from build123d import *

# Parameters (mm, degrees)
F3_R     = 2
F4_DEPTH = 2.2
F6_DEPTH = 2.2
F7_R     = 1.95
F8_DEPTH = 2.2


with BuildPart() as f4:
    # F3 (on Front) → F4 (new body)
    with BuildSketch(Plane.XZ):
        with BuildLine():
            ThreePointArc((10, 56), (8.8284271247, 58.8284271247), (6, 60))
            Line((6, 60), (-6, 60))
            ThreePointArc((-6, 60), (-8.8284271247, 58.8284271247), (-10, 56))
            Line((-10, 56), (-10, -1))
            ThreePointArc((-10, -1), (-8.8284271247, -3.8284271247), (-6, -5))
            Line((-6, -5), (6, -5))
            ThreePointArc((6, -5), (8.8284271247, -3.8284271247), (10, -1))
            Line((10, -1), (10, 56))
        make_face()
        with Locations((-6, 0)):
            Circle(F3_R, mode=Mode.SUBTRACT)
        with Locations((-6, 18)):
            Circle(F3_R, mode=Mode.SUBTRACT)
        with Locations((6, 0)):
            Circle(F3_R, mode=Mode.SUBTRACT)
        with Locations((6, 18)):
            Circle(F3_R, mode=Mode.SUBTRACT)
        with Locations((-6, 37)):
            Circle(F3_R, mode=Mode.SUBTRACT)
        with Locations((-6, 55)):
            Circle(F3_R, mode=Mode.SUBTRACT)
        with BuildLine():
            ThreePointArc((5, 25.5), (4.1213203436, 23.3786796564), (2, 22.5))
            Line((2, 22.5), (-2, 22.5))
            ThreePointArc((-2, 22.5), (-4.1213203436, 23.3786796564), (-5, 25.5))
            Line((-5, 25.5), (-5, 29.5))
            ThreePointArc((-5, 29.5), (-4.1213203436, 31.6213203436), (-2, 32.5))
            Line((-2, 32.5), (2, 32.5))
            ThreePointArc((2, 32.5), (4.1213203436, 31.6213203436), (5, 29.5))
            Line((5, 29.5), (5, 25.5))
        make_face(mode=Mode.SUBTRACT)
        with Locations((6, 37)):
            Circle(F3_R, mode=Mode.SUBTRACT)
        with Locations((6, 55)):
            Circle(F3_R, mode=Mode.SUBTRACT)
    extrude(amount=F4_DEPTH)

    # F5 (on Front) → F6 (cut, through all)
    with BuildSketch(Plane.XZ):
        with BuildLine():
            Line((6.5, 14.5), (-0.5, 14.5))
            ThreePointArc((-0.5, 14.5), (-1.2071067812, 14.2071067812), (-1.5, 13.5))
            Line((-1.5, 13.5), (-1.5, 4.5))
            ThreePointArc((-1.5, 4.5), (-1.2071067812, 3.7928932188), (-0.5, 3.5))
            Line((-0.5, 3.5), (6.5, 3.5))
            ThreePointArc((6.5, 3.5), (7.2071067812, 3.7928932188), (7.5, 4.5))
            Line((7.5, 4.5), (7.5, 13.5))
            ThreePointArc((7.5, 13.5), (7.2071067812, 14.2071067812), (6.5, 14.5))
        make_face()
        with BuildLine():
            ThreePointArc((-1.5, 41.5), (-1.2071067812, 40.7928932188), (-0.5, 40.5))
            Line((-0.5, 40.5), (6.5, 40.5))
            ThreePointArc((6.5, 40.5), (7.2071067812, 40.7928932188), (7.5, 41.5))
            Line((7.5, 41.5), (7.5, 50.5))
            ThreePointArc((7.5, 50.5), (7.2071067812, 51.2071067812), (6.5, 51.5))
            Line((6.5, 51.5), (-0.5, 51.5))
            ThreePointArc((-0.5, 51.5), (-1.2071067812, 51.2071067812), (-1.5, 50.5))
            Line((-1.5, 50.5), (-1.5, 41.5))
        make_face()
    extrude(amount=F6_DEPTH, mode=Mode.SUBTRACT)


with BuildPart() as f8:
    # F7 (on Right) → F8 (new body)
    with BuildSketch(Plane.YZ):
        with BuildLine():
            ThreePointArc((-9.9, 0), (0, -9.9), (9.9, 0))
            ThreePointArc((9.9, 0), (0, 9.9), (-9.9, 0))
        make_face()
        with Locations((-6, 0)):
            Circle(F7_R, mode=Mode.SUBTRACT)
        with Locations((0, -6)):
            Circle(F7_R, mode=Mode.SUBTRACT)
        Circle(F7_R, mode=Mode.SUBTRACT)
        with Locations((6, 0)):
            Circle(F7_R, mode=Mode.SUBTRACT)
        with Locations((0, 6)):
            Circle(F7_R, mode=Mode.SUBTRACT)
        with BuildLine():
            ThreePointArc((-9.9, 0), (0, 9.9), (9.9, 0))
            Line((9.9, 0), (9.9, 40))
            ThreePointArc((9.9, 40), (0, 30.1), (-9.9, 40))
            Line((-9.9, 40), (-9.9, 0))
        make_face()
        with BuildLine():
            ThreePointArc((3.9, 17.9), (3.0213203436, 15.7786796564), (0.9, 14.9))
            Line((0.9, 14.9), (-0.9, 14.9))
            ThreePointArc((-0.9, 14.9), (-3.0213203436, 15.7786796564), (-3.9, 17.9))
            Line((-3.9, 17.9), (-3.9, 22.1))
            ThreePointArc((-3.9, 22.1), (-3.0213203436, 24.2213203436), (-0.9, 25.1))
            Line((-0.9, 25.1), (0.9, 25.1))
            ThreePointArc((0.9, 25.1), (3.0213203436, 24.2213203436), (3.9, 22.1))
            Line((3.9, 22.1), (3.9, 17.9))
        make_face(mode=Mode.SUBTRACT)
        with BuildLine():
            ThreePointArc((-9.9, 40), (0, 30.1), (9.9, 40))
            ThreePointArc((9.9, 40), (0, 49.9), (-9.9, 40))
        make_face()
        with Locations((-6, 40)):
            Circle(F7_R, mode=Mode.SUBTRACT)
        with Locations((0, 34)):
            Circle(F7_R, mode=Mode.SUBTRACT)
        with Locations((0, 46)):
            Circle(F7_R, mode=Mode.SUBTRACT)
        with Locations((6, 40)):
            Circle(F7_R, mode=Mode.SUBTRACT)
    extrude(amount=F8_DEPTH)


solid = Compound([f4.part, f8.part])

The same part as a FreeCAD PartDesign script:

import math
import FreeCAD as App
import Part
import Sketcher
from FreeCAD import Vector

doc = App.newDocument("Part")
body = doc.addObject("PartDesign::Body", "Body")

sketch1 = body.newObject("Sketcher::SketchObject", "Sketch")
sketch1.AttachmentSupport = (doc.getObject("XZ_Plane"), [""])
sketch1.MapMode = "FlatFace"
sketch1.addGeometry([
    Part.ArcOfCircle(Part.Circle(Vector(6, 56, 0), Vector(0, 0, 1), 4), math.radians(0), math.radians(90)),
    Part.LineSegment(Vector(6, 60, 0), Vector(-6, 60, 0)),
    Part.ArcOfCircle(Part.Circle(Vector(-6, 56, 0), Vector(0, 0, 1), 4), math.radians(90), math.radians(180)),
    Part.LineSegment(Vector(-10, 56, 0), Vector(-10, -1, 0)),
    Part.ArcOfCircle(Part.Circle(Vector(-6, -1, 0), Vector(0, 0, 1), 4), math.radians(180), math.radians(270)),
    Part.LineSegment(Vector(-6, -5, 0), Vector(6, -5, 0)),
    Part.ArcOfCircle(Part.Circle(Vector(6, -1, 0), Vector(0, 0, 1), 4), math.radians(-90), math.radians(0)),
    Part.LineSegment(Vector(10, -1, 0), Vector(10, 56, 0)),
    Part.Circle(Vector(-6, 0, 0), Vector(0, 0, 1), 2),
    Part.Circle(Vector(-6, 18, 0), Vector(0, 0, 1), 2),
    Part.Circle(Vector(6, 0, 0), Vector(0, 0, 1), 2),
    Part.Circle(Vector(6, 18, 0), Vector(0, 0, 1), 2),
    Part.Circle(Vector(-6, 37, 0), Vector(0, 0, 1), 2),
    Part.Circle(Vector(-6, 55, 0), Vector(0, 0, 1), 2),
    Part.LineSegment(Vector(5, 29.5, 0), Vector(5, 25.5, 0)),
    Part.ArcOfCircle(Part.Circle(Vector(2, 25.5, 0), Vector(0, 0, 1), 3), math.radians(-90), math.radians(0)),
    Part.LineSegment(Vector(2, 22.5, 0), Vector(-2, 22.5, 0)),
    Part.ArcOfCircle(Part.Circle(Vector(-2, 25.5, 0), Vector(0, 0, 1), 3), math.radians(180), math.radians(270)),
    Part.LineSegment(Vector(-5, 25.5, 0), Vector(-5, 29.5, 0)),
    Part.ArcOfCircle(Part.Circle(Vector(-2, 29.5, 0), Vector(0, 0, 1), 3), math.radians(90), math.radians(180)),
    Part.LineSegment(Vector(-2, 32.5, 0), Vector(2, 32.5, 0)),
    Part.ArcOfCircle(Part.Circle(Vector(2, 29.5, 0), Vector(0, 0, 1), 3), math.radians(0), math.radians(90)),
    Part.Circle(Vector(6, 37, 0), Vector(0, 0, 1), 2),
    Part.Circle(Vector(6, 55, 0), Vector(0, 0, 1), 2),
], False)
sketch1.addConstraint([
    Sketcher.Constraint("Tangent", 0, 2, 1, 1),
    Sketcher.Constraint("Tangent", 1, 2, 2, 1),
    Sketcher.Constraint("Tangent", 2, 2, 3, 1),
    Sketcher.Constraint("Tangent", 3, 2, 4, 1),
    Sketcher.Constraint("Tangent", 4, 2, 5, 1),
    Sketcher.Constraint("Tangent", 5, 2, 6, 1),
    Sketcher.Constraint("Tangent", 6, 2, 7, 1),
    Sketcher.Constraint("Tangent", 7, 2, 0, 1),
    Sketcher.Constraint("Tangent", 14, 2, 15, 2),
    Sketcher.Constraint("Tangent", 15, 1, 16, 1),
    Sketcher.Constraint("Tangent", 16, 2, 17, 2),
    Sketcher.Constraint("Tangent", 17, 1, 18, 1),
    Sketcher.Constraint("Tangent", 18, 2, 19, 2),
    Sketcher.Constraint("Tangent", 19, 1, 20, 1),
    Sketcher.Constraint("Tangent", 20, 2, 21, 2),
    Sketcher.Constraint("Tangent", 21, 1, 14, 1),
    Sketcher.Constraint("Horizontal", 1),
    Sketcher.Constraint("Vertical", 3),
    Sketcher.Constraint("Horizontal", 5),
    Sketcher.Constraint("Vertical", 7),
    Sketcher.Constraint("Vertical", 14),
    Sketcher.Constraint("Horizontal", 16),
    Sketcher.Constraint("Vertical", 18),
    Sketcher.Constraint("Horizontal", 20),
    Sketcher.Constraint("Equal", 0, 2),
    Sketcher.Constraint("Equal", 2, 4),
    Sketcher.Constraint("Equal", 4, 6),
    Sketcher.Constraint("Equal", 8, 9),
    Sketcher.Constraint("Equal", 9, 10),
    Sketcher.Constraint("Equal", 10, 11),
    Sketcher.Constraint("Equal", 11, 12),
    Sketcher.Constraint("Equal", 12, 13),
    Sketcher.Constraint("Equal", 15, 17),
    Sketcher.Constraint("Equal", 17, 19),
    Sketcher.Constraint("Equal", 19, 21),
    Sketcher.Constraint("Equal", 13, 22),
    Sketcher.Constraint("Equal", 22, 23),
    Sketcher.Constraint("Symmetric", 8, 3, 10, 3, -1, 1),
    Sketcher.Constraint("Symmetric", 9, 3, 11, 3, -2),
    Sketcher.Constraint("Symmetric", 12, 3, 22, 3, -2),
    Sketcher.Constraint("Symmetric", 13, 3, 23, 3, -2),
    Sketcher.Constraint("PointOnObject", 8, 3, -1),
    Sketcher.Constraint("Vertical", 4, 3, 8, 3),
    Sketcher.Constraint("Vertical", 8, 3, 9, 3),
    Sketcher.Constraint("Vertical", 6, 3, 10, 3),
    Sketcher.Constraint("Vertical", 9, 3, 12, 3),
    Sketcher.Constraint("Vertical", 12, 3, 13, 3),
    Sketcher.Constraint("Equal", 20, 14),
    Sketcher.Constraint("Diameter", 8, 4.0),
    Sketcher.Constraint("Radius", 0, 4.0),
    Sketcher.Constraint("Radius", 15, 3.0),
    Sketcher.Constraint("DistanceX", 1, 2, 1, 1, 12.0),
    Sketcher.Constraint("DistanceX", 16, 2, 16, 1, 4.0),
    Sketcher.Constraint("DistanceY", 3, 2, 3, 1, 57.0),
    Sketcher.Constraint("DistanceY", -1, 1, 0, 3, 56.0),
    Sketcher.Constraint("DistanceY", -1, 1, 9, 3, 18.0),
    Sketcher.Constraint("DistanceY", -1, 1, 12, 3, 37.0),
    Sketcher.Constraint("DistanceY", -1, 1, 13, 3, 55.0),
    Sketcher.Constraint("DistanceX", -1, 1, 15, 3, 2.0),
    Sketcher.Constraint("DistanceY", -1, 1, 15, 3, 25.5),
])
pad1 = body.newObject("PartDesign::Pad", "Pad")
pad1.Profile = sketch1
pad1.Length = 2.2

sketch2 = body.newObject("Sketcher::SketchObject", "Sketch001")
sketch2.AttachmentSupport = (doc.getObject("XZ_Plane"), [""])
sketch2.MapMode = "FlatFace"
sketch2.addGeometry([
    Part.LineSegment(Vector(6.5, 14.5, 0), Vector(-0.5, 14.5, 0)),
    Part.ArcOfCircle(Part.Circle(Vector(-0.5, 13.5, 0), Vector(0, 0, 1), 1), math.radians(90), math.radians(180)),
    Part.LineSegment(Vector(-1.5, 13.5, 0), Vector(-1.5, 4.5, 0)),
    Part.ArcOfCircle(Part.Circle(Vector(-0.5, 4.5, 0), Vector(0, 0, 1), 1), math.radians(180), math.radians(270)),
    Part.LineSegment(Vector(-0.5, 3.5, 0), Vector(6.5, 3.5, 0)),
    Part.ArcOfCircle(Part.Circle(Vector(6.5, 4.5, 0), Vector(0, 0, 1), 1), math.radians(-90), math.radians(0)),
    Part.LineSegment(Vector(7.5, 4.5, 0), Vector(7.5, 13.5, 0)),
    Part.ArcOfCircle(Part.Circle(Vector(6.5, 13.5, 0), Vector(0, 0, 1), 1), math.radians(0), math.radians(90)),
    Part.ArcOfCircle(Part.Circle(Vector(-0.5, 41.5, 0), Vector(0, 0, 1), 1), math.radians(180), math.radians(270)),
    Part.LineSegment(Vector(-0.5, 40.5, 0), Vector(6.5, 40.5, 0)),
    Part.ArcOfCircle(Part.Circle(Vector(6.5, 41.5, 0), Vector(0, 0, 1), 1), math.radians(-90), math.radians(0)),
    Part.LineSegment(Vector(7.5, 41.5, 0), Vector(7.5, 50.5, 0)),
    Part.ArcOfCircle(Part.Circle(Vector(6.5, 50.5, 0), Vector(0, 0, 1), 1), math.radians(0), math.radians(90)),
    Part.LineSegment(Vector(6.5, 51.5, 0), Vector(-0.5, 51.5, 0)),
    Part.ArcOfCircle(Part.Circle(Vector(-0.5, 50.5, 0), Vector(0, 0, 1), 1), math.radians(90), math.radians(180)),
    Part.LineSegment(Vector(-1.5, 50.5, 0), Vector(-1.5, 41.5, 0)),
], False)
sketch2.addConstraint([
    Sketcher.Constraint("Tangent", 0, 2, 1, 1),
    Sketcher.Constraint("Tangent", 1, 2, 2, 1),
    Sketcher.Constraint("Tangent", 2, 2, 3, 1),
    Sketcher.Constraint("Tangent", 3, 2, 4, 1),
    Sketcher.Constraint("Tangent", 4, 2, 5, 1),
    Sketcher.Constraint("Tangent", 5, 2, 6, 1),
    Sketcher.Constraint("Tangent", 6, 2, 7, 1),
    Sketcher.Constraint("Tangent", 7, 2, 0, 1),
    Sketcher.Constraint("Tangent", 8, 2, 9, 1),
    Sketcher.Constraint("Tangent", 9, 2, 10, 1),
    Sketcher.Constraint("Tangent", 10, 2, 11, 1),
    Sketcher.Constraint("Tangent", 11, 2, 12, 1),
    Sketcher.Constraint("Tangent", 12, 2, 13, 1),
    Sketcher.Constraint("Tangent", 13, 2, 14, 1),
    Sketcher.Constraint("Tangent", 14, 2, 15, 1),
    Sketcher.Constraint("Tangent", 15, 2, 8, 1),
    Sketcher.Constraint("Horizontal", 0),
    Sketcher.Constraint("Vertical", 2),
    Sketcher.Constraint("Horizontal", 4),
    Sketcher.Constraint("Vertical", 6),
    Sketcher.Constraint("Horizontal", 9),
    Sketcher.Constraint("Vertical", 11),
    Sketcher.Constraint("Horizontal", 13),
    Sketcher.Constraint("Vertical", 15),
    Sketcher.Constraint("Equal", 1, 3),
    Sketcher.Constraint("Equal", 3, 5),
    Sketcher.Constraint("Equal", 5, 7),
    Sketcher.Constraint("Equal", 7, 8),
    Sketcher.Constraint("Equal", 8, 10),
    Sketcher.Constraint("Equal", 10, 12),
    Sketcher.Constraint("Equal", 12, 14),
    Sketcher.Constraint("Vertical", 3, 3, 8, 3),
    Sketcher.Constraint("Vertical", 7, 3, 10, 3),
    Sketcher.Constraint("Equal", 6, 11),
    Sketcher.Constraint("Radius", 1, 1.0),
    Sketcher.Constraint("DistanceX", 0, 2, 0, 1, 7.0),
    Sketcher.Constraint("DistanceY", 2, 2, 2, 1, 9.0),
    Sketcher.Constraint("DistanceY", 1, 3, 8, 3, 28.0),
    Sketcher.Constraint("DistanceX", 1, 3, -1, 1, 0.5),
    Sketcher.Constraint("DistanceY", -1, 1, 1, 3, 13.5),
])
pocket1 = body.newObject("PartDesign::Pocket", "Pocket")
pocket1.Profile = sketch2
pocket1.Type = "ThroughAll"
pocket1.Reversed = True
body2 = doc.addObject("PartDesign::Body", "Body001")

sketch3 = body2.newObject("Sketcher::SketchObject", "Sketch002")
sketch3.AttachmentSupport = (doc.getObject("YZ_Plane001"), [""])
sketch3.MapMode = "FlatFace"
sketch3.addGeometry([
    Part.ArcOfCircle(Part.Circle(Vector(0, 0, 0), Vector(0, 0, 1), 9.9), math.radians(180), math.radians(360)),
    Part.LineSegment(Vector(9.9, 0, 0), Vector(9.9, 40, 0)),
    Part.ArcOfCircle(Part.Circle(Vector(0, 40, 0), Vector(0, 0, 1), 9.9), math.radians(0), math.radians(180)),
    Part.LineSegment(Vector(-9.9, 40, 0), Vector(-9.9, 0, 0)),
    Part.Circle(Vector(-6, 0, 0), Vector(0, 0, 1), 1.95),
    Part.Circle(Vector(0, -6, 0), Vector(0, 0, 1), 1.95),
    Part.Circle(Vector(0, 0, 0), Vector(0, 0, 1), 1.95),
    Part.Circle(Vector(0, 6, 0), Vector(0, 0, 1), 1.95),
    Part.Circle(Vector(6, 0, 0), Vector(0, 0, 1), 1.95),
    Part.LineSegment(Vector(3.9, 22.1, 0), Vector(3.9, 17.9, 0)),
    Part.ArcOfCircle(Part.Circle(Vector(0.9, 17.9, 0), Vector(0, 0, 1), 3), math.radians(-90), math.radians(0)),
    Part.LineSegment(Vector(0.9, 14.9, 0), Vector(-0.9, 14.9, 0)),
    Part.ArcOfCircle(Part.Circle(Vector(-0.9, 17.9, 0), Vector(0, 0, 1), 3), math.radians(180), math.radians(270)),
    Part.LineSegment(Vector(-3.9, 17.9, 0), Vector(-3.9, 22.1, 0)),
    Part.ArcOfCircle(Part.Circle(Vector(-0.9, 22.1, 0), Vector(0, 0, 1), 3), math.radians(90), math.radians(180)),
    Part.LineSegment(Vector(-0.9, 25.1, 0), Vector(0.9, 25.1, 0)),
    Part.ArcOfCircle(Part.Circle(Vector(0.9, 22.1, 0), Vector(0, 0, 1), 3), math.radians(0), math.radians(90)),
    Part.Circle(Vector(-6, 40, 0), Vector(0, 0, 1), 1.95),
    Part.Circle(Vector(0, 34, 0), Vector(0, 0, 1), 1.95),
    Part.Circle(Vector(0, 46, 0), Vector(0, 0, 1), 1.95),
    Part.Circle(Vector(6, 40, 0), Vector(0, 0, 1), 1.95),
], False)
sketch3.addConstraint([
    Sketcher.Constraint("Tangent", 0, 2, 1, 1),
    Sketcher.Constraint("Tangent", 1, 2, 2, 1),
    Sketcher.Constraint("Tangent", 2, 2, 3, 1),
    Sketcher.Constraint("Tangent", 3, 2, 0, 1),
    Sketcher.Constraint("Tangent", 9, 2, 10, 2),
    Sketcher.Constraint("Tangent", 10, 1, 11, 1),
    Sketcher.Constraint("Tangent", 11, 2, 12, 2),
    Sketcher.Constraint("Tangent", 12, 1, 13, 1),
    Sketcher.Constraint("Tangent", 13, 2, 14, 2),
    Sketcher.Constraint("Tangent", 14, 1, 15, 1),
    Sketcher.Constraint("Tangent", 15, 2, 16, 2),
    Sketcher.Constraint("Tangent", 16, 1, 9, 1),
    Sketcher.Constraint("Vertical", 1),
    Sketcher.Constraint("Vertical", 3),
    Sketcher.Constraint("Vertical", 9),
    Sketcher.Constraint("Horizontal", 11),
    Sketcher.Constraint("Vertical", 13),
    Sketcher.Constraint("Horizontal", 15),
    Sketcher.Constraint("Coincident", 0, 3, -1, 1),
    Sketcher.Constraint("Coincident", 6, 3, -1, 1),
    Sketcher.Constraint("Equal", 4, 5),
    Sketcher.Constraint("Equal", 5, 6),
    Sketcher.Constraint("Equal", 6, 7),
    Sketcher.Constraint("Equal", 7, 8),
    Sketcher.Constraint("Equal", 10, 12),
    Sketcher.Constraint("Equal", 12, 14),
    Sketcher.Constraint("Equal", 14, 16),
    Sketcher.Constraint("Equal", 8, 17),
    Sketcher.Constraint("Equal", 17, 18),
    Sketcher.Constraint("Equal", 18, 19),
    Sketcher.Constraint("Equal", 19, 20),
    Sketcher.Constraint("Symmetric", 5, 3, 7, 3, -1, 1),
    Sketcher.Constraint("Symmetric", 4, 3, 8, 3, -1, 1),
    Sketcher.Constraint("Symmetric", 17, 3, 20, 3, -2),
    Sketcher.Constraint("PointOnObject", 4, 3, -1),
    Sketcher.Constraint("PointOnObject", 5, 3, -2),
    Sketcher.Constraint("PointOnObject", 18, 3, -2),
    Sketcher.Constraint("PointOnObject", 19, 3, -2),
    Sketcher.Constraint("Horizontal", 2, 3, 17, 3),
    Sketcher.Constraint("Vertical", 4, 3, 17, 3),
    Sketcher.Constraint("Radius", 10, 3.0),
    Sketcher.Constraint("Diameter", 4, 3.9),
    Sketcher.Constraint("Radius", 0, 9.9),
    Sketcher.Constraint("DistanceY", 1, 1, 1, 2, 40.0),
    Sketcher.Constraint("DistanceX", 11, 2, 11, 1, 1.8),
    Sketcher.Constraint("DistanceY", 9, 2, 9, 1, 4.2),
    Sketcher.Constraint("DistanceX", 4, 3, -1, 1, 6.0),
    Sketcher.Constraint("DistanceY", 5, 3, -1, 1, 6.0),
    Sketcher.Constraint("DistanceY", -1, 1, 18, 3, 34.0),
    Sketcher.Constraint("DistanceY", -1, 1, 19, 3, 46.0),
    Sketcher.Constraint("DistanceX", -1, 1, 10, 3, 0.9),
    Sketcher.Constraint("DistanceY", -1, 1, 10, 3, 17.9),
])
pad2 = body2.newObject("PartDesign::Pad", "Pad001")
pad2.Profile = sketch3
pad2.Length = 2.2

doc.recompute()
